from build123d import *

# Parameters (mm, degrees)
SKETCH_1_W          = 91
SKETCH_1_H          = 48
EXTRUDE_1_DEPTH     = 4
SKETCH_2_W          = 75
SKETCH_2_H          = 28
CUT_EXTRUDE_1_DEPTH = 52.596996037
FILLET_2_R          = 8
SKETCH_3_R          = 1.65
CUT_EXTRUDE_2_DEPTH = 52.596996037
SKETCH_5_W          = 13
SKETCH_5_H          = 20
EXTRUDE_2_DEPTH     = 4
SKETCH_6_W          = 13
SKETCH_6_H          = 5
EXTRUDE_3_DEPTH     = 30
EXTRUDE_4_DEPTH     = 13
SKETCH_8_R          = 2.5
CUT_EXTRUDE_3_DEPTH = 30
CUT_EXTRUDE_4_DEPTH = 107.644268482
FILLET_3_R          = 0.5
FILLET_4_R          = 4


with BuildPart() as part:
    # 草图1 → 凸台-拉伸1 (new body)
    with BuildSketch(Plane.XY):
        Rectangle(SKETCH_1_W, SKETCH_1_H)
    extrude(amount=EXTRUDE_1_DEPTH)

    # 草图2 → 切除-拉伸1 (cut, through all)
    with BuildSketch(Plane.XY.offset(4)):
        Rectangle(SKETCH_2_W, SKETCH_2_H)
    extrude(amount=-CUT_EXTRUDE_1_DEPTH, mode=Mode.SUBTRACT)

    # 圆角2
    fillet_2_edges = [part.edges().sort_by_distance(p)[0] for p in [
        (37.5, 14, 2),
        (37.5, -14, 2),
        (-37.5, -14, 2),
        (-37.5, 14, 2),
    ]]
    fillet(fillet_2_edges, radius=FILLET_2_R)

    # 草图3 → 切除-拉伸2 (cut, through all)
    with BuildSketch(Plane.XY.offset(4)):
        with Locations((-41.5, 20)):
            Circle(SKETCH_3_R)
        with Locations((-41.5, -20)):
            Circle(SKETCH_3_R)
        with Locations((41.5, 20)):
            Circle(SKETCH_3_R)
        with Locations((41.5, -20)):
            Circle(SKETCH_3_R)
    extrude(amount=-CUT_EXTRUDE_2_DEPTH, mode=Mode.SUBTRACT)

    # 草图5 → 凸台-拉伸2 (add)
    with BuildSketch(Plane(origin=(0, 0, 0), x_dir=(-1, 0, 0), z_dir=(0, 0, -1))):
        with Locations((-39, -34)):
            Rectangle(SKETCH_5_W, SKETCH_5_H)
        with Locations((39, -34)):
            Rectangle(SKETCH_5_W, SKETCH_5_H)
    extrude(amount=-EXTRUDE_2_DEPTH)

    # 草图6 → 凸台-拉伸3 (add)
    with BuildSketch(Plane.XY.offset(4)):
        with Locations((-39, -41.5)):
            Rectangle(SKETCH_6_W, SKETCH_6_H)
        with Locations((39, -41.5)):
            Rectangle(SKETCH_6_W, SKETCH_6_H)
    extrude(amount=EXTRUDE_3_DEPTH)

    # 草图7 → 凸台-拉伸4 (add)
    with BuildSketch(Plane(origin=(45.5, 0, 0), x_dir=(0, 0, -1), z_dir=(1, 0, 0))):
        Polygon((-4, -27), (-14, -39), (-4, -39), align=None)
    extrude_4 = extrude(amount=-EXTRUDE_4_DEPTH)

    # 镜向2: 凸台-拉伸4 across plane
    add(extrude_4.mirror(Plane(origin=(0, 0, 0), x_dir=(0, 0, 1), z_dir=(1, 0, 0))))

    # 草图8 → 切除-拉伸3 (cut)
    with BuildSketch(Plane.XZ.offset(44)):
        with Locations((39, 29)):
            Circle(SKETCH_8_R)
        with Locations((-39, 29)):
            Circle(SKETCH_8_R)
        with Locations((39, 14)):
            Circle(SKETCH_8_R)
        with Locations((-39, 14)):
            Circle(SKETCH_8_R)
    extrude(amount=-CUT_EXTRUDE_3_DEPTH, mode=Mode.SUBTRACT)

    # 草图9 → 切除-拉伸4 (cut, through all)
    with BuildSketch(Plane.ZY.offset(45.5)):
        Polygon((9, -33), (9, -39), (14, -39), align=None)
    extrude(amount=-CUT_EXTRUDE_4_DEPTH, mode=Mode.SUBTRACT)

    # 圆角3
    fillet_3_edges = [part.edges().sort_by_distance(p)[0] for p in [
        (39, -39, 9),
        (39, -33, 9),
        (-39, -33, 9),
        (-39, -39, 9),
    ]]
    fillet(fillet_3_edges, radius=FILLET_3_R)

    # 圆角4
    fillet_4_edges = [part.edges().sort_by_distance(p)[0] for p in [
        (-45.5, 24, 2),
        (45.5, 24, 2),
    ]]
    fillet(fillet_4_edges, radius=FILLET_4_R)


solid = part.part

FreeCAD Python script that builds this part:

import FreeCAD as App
import Part
import Sketcher

V = App.Vector
Q = App.Units.Quantity


def edges_at(feature, points):
    """Names of the edges that pass closest to the given points."""
    edges = feature.Shape.Edges
    near = lambda p: min(range(len(edges)), key=lambda i: edges[i].distToShape(Part.Vertex(*p))[0])
    return sorted({f"Edge{near(p) + 1}" for p in points})


def add_polygon(sketch, points):
    """Adds a closed chain of lines whose ends are joined by coincident constraints."""
    first, n = sketch.GeometryCount, len(points)
    for a, b in zip(points, points[1:] + points[:1]):
        sketch.addGeometry(Part.LineSegment(App.Vector(*a, 0), App.Vector(*b, 0)), False)
    for i in range(n):
        sketch.addConstraint(Sketcher.Constraint("Coincident", first + i, 2, first + (i + 1) % n, 1))

doc = App.newDocument("Part")
params = doc.addObject("Spreadsheet::Sheet", "Params")
for row, (alias, value) in enumerate([
    ("sketch1_width", "91 mm"),
    ("sketch1_height", "48 mm"),
    ("pad1_length", "4 mm"),
    ("sketch2_width", "75 mm"),
    ("sketch2_height", "28 mm"),
    ("fillet_radius", "8 mm"),
    ("sketch3_diameter", "3.3 mm"),
    ("sketch4_width", "13 mm"),
    ("sketch4_height", "20 mm"),
    ("pad2_length", "4 mm"),
    ("sketch5_width", "13 mm"),
    ("sketch5_height", "5 mm"),
    ("pad3_length", "30 mm"),
    ("sketch6_width", "12 mm"),
    ("sketch6_height", "10 mm"),
    ("pad4_length", "13 mm"),
    ("sketch7_diameter", "5 mm"),
    ("pocket3_length", "30 mm"),
    ("sketch8_width", "6 mm"),
    ("sketch8_height", "5 mm"),
    ("fillet2_radius", "0.5 mm"),
    ("fillet3_radius", "4 mm"),
], start=1):
    params.set(f"A{row}", alias)
    params.set(f"B{row}", "=" + value)
    params.setAlias(f"B{row}", alias)

body = doc.addObject("PartDesign::Body", "Body")

sketch1 = doc.addObject("Sketcher::SketchObject", "Sketch")
body.addObject(sketch1)
sketch1.AttachmentSupport = (doc.XY_Plane, [""])
sketch1.MapMode = "FlatFace"
add_polygon(sketch1, [(-46, 24), (-46, -24), (46, -24), (46, 24)])
sketch1.addConstraint([
    Sketcher.Constraint("Vertical", 0),
    Sketcher.Constraint("Horizontal", 1),
    Sketcher.Constraint("Vertical", 2),
    Sketcher.Constraint("Horizontal", 3),
    Sketcher.Constraint("Symmetric", 0, 2, 2, 2, -1, 1),
    Sketcher.Constraint("DistanceX", 1, 1, 1, 2, Q("91 mm")),
    Sketcher.Constraint("DistanceY", 0, 2, 0, 1, Q("48 mm")),
])
sketch1.setExpression("Constraints[9]", "Params.sketch1_width")
sketch1.setExpression("Constraints[10]", "Params.sketch1_height")
pad1 = doc.addObject("PartDesign::Pad", "Pad")
body.addObject(pad1)
pad1.Profile = sketch1
pad1.setExpression("Length", "Params.pad1_length")

sketch2 = doc.addObject("Sketcher::SketchObject", "Sketch001")
body.addObject(sketch2)
sketch2.AttachmentSupport = (doc.XY_Plane, [""])
sketch2.MapMode = "FlatFace"
sketch2.AttachmentOffset = App.Placement(V(0, 0, 4), App.Rotation())
add_polygon(sketch2, [(-38, 14), (-38, -14), (38, -14), (38, 14)])
sketch2.addConstraint([
    Sketcher.Constraint("Vertical", 0),
    Sketcher.Constraint("Horizontal", 1),
    Sketcher.Constraint("Vertical", 2),
    Sketcher.Constraint("Horizontal", 3),
    Sketcher.Constraint("Symmetric", 0, 2, 2, 2, -1, 1),
    Sketcher.Constraint("DistanceX", 1, 1, 1, 2, Q("75 mm")),
    Sketcher.Constraint("DistanceY", 0, 2, 0, 1, Q("28 mm")),
])
sketch2.setExpression("Constraints[9]", "Params.sketch2_width")
sketch2.setExpression("Constraints[10]", "Params.sketch2_height")
pocket1 = doc.addObject("PartDesign::Pocket", "Pocket")
body.addObject(pocket1)
pocket1.Profile = sketch2
pocket1.Type = "ThroughAll"
doc.recompute()

fillet = doc.addObject("PartDesign::Fillet", "Fillet")
body.addObject(fillet)
fillet.Base = (pocket1, edges_at(pocket1, [
    (37.5, 14, 2),
    (37.5, -14, 2),
    (-37.5, -14, 2),
    (-37.5, 14, 2),
]))
fillet.setExpression("Radius", "Params.fillet_radius")

sketch3 = doc.addObject("Sketcher::SketchObject", "Sketch002")
body.addObject(sketch3)
sketch3.AttachmentSupport = (doc.XY_Plane, [""])
sketch3.MapMode = "FlatFace"
sketch3.AttachmentOffset = App.Placement(V(0, 0, 4), App.Rotation())
sketch3.addGeometry([
    Part.Circle(V(-41.5, 20, 0), V(0, 0, 1), 1.6),
    Part.Circle(V(-41.5, -20, 0), V(0, 0, 1), 1.6),
    Part.Circle(V(41.5, 20, 0), V(0, 0, 1), 1.6),
    Part.Circle(V(41.5, -20, 0), V(0, 0, 1), 1.6),
], False)
sketch3.addConstraint([
    Sketcher.Constraint("Equal", 0, 1),
    Sketcher.Constraint("Equal", 1, 2),
    Sketcher.Constraint("Equal", 2, 3),
    Sketcher.Constraint("Symmetric", 1, 3, 2, 3, -1, 1),
    Sketcher.Constraint("Symmetric", 0, 3, 3, 3, -1, 1),
    Sketcher.Constraint("Symmetric", 0, 3, 2, 3, -2),
    Sketcher.Constraint("Diameter", 0, Q("3.3 mm")),
    Sketcher.Constraint("DistanceY", -1, 1, 0, 3, Q("20 mm")),
    Sketcher.Constraint("DistanceX", 0, 3, 2, 3, Q("83 mm")),
])
sketch3.setExpression("Constraints[6]", "Params.sketch3_diameter")
pocket2 = doc.addObject("PartDesign::Pocket", "Pocket001")
body.addObject(pocket2)
pocket2.Profile = sketch3
pocket2.Type = "ThroughAll"

sketch4 = doc.addObject("Sketcher::SketchObject", "Sketch003")
body.addObject(sketch4)
sketch4.AttachmentSupport = (doc.XY_Plane, [""])
sketch4.MapMode = "FlatFace"
add_polygon(sketch4, [(46, -24), (46, -44), (32, -44), (32, -24)])
add_polygon(sketch4, [(-32, -24), (-32, -44), (-46, -44), (-46, -24)])
sketch4.addConstraint([
    Sketcher.Constraint("Vertical", 0),
    Sketcher.Constraint("Horizontal", 1),
    Sketcher.Constraint("Vertical", 2),
    Sketcher.Constraint("Horizontal", 3),
    Sketcher.Constraint("Vertical", 4),
    Sketcher.Constraint("Horizontal", 5),
    Sketcher.Constraint("Vertical", 6),
    Sketcher.Constraint("Horizontal", 7),
    Sketcher.Constraint("Symmetric", 1, 2, 4, 2, -2),
    Sketcher.Constraint("Symmetric", 3, 2, 6, 2, -2),
    Sketcher.Constraint("DistanceX", 1, 2, 1, 1, Q("13 mm")),
    Sketcher.Constraint("DistanceY", 0, 2, 0, 1, Q("20 mm")),
    Sketcher.Constraint("DistanceY", 0, 2, -1, 1, Q("44 mm")),
    Sketcher.Constraint("DistanceX", 4, 2, 1, 2, Q("65 mm")),
])
sketch4.setExpression("Constraints[18]", "Params.sketch4_width")
sketch4.setExpression("Constraints[19]", "Params.sketch4_height")
pad2 = doc.addObject("PartDesign::Pad", "Pad001")
body.addObject(pad2)
pad2.Profile = sketch4
pad2.setExpression("Length", "Params.pad2_length")

sketch5 = doc.addObject("Sketcher::SketchObject", "Sketch004")
body.addObject(sketch5)
sketch5.AttachmentSupport = (doc.XY_Plane, [""])
sketch5.MapMode = "FlatFace"
sketch5.AttachmentOffset = App.Placement(V(0, 0, 4), App.Rotation())
add_polygon(sketch5, [(-46, -39), (-46, -44), (-32, -44), (-32, -39)])
add_polygon(sketch5, [(32, -39), (32, -44), (46, -44), (46, -39)])
sketch5.addConstraint([
    Sketcher.Constraint("Vertical", 0),
    Sketcher.Constraint("Horizontal", 1),
    Sketcher.Constraint("Vertical", 2),
    Sketcher.Constraint("Horizontal", 3),
    Sketcher.Constraint("Vertical", 4),
    Sketcher.Constraint("Horizontal", 5),
    Sketcher.Constraint("Vertical", 6),
    Sketcher.Constraint("Horizontal", 7),
    Sketcher.Constraint("Symmetric", 1, 2, 4, 2, -2),
    Sketcher.Constraint("Symmetric", 3, 2, 6, 2, -2),
    Sketcher.Constraint("DistanceX", 1, 1, 1, 2, Q("13 mm")),
    Sketcher.Constraint("DistanceY", 0, 2, 0, 1, Q("5 mm")),
    Sketcher.Constraint("DistanceY", 0, 2, -1, 1, Q("44 mm")),
    Sketcher.Constraint("DistanceX", 1, 2, 4, 2, Q("65 mm")),
])
sketch5.setExpression("Constraints[18]", "Params.sketch5_width")
sketch5.setExpression("Constraints[19]", "Params.sketch5_height")
pad3 = doc.addObject("PartDesign::Pad", "Pad002")
body.addObject(pad3)
pad3.Profile = sketch5
pad3.setExpression("Length", "Params.pad3_length")

sketch6 = doc.addObject("Sketcher::SketchObject", "Sketch005")
body.addObject(sketch6)
sketch6.AttachmentSupport = (doc.YZ_Plane, [""])
sketch6.MapMode = "FlatFace"
sketch6.AttachmentOffset = App.Placement(V(0, 0, 45.5), App.Rotation())
add_polygon(sketch6, [(-27, 4), (-39, 14), (-39, 4)])
sketch6.addConstraint([
    Sketcher.Constraint("Vertical", 1),
    Sketcher.Constraint("Horizontal", 2),
    Sketcher.Constraint("DistanceX", 2, 1, 2, 2, Q("12 mm")),
    Sketcher.Constraint("DistanceY", 1, 2, 1, 1, Q("10 mm")),
    Sketcher.Constraint("DistanceX", 0, 2, -1, 1, Q("39 mm")),
    Sketcher.Constraint("DistanceY", -1, 1, 0, 2, Q("14 mm")),
])
sketch6.setExpression("Constraints[5]", "Params.sketch6_width")
sketch6.setExpression("Constraints[6]", "Params.sketch6_height")
pad4 = doc.addObject("PartDesign::Pad", "Pad003")
body.addObject(pad4)
pad4.Profile = sketch6
pad4.setExpression("Length", "Params.pad4_length")
pad4.Reversed = True
doc.recompute()

mirrored = doc.addObject("PartDesign::Mirrored", "Mirrored")
body.addObject(mirrored)
mirrored.Originals = [pad4]
mirrored.MirrorPlane = (doc.YZ_Plane, [""])
body.Tip = mirrored

sketch7 = doc.addObject("Sketcher::SketchObject", "Sketch006")
body.addObject(sketch7)
sketch7.AttachmentSupport = (doc.XZ_Plane, [""])
sketch7.MapMode = "FlatFace"
sketch7.AttachmentOffset = App.Placement(V(0, 0, 44), App.Rotation())
sketch7.addGeometry([
    Part.Circle(V(39, 29, 0), V(0, 0, 1), 2.5),
    Part.Circle(V(-39, 29, 0), V(0, 0, 1), 2.5),
    Part.Circle(V(39, 14, 0), V(0, 0, 1), 2.5),
    Part.Circle(V(-39, 14, 0), V(0, 0, 1), 2.5),
], False)
sketch7.addConstraint([
    Sketcher.Constraint("Equal", 0, 1),
    Sketcher.Constraint("Equal", 1, 2),
    Sketcher.Constraint("Equal", 2, 3),
    Sketcher.Constraint("Symmetric", 0, 3, 1, 3, -2),
    Sketcher.Constraint("Symmetric", 2, 3, 3, 3, -2),
    Sketcher.Constraint("Vertical", 0, 3, 2, 3),
    Sketcher.Constraint("Diameter", 0, Q("5 mm")),
    Sketcher.Constraint("DistanceX", -1, 1, 0, 3, Q("39 mm")),
    Sketcher.Constraint("DistanceY", -1, 1, 0, 3, Q("29 mm")),
    Sketcher.Constraint("DistanceY", -1, 1, 2, 3, Q("14 mm")),
])
sketch7.setExpression("Constraints[6]", "Params.sketch7_diameter")
pocket3 = doc.addObject("PartDesign::Pocket", "Pocket002")
body.addObject(pocket3)
pocket3.Profile = sketch7
pocket3.setExpression("Length", "Params.pocket3_length")

sketch8 = doc.addObject("Sketcher::SketchObject", "Sketch007")
body.addObject(sketch8)
sketch8.AttachmentSupport = (doc.YZ_Plane, [""])
sketch8.MapMode = "FlatFace"
sketch8.AttachmentOffset = App.Placement(V(0, 0, -45.5), App.Rotation())
add_polygon(sketch8, [(-33, 9), (-39, 9), (-39, 14)])
sketch8.addConstraint([
    Sketcher.Constraint("Horizontal", 0),
    Sketcher.Constraint("Vertical", 1),
    Sketcher.Constraint("DistanceX", 0, 2, 0, 1, Q("6 mm")),
    Sketcher.Constraint("DistanceY", 1, 1, 1, 2, Q("5 mm")),
    Sketcher.Constraint("DistanceX", 0, 2, -1, 1, Q("39 mm")),
    Sketcher.Constraint("DistanceY", -1, 1, 0, 2, Q("9 mm")),
])
sketch8.setExpression("Constraints[5]", "Params.sketch8_width")
sketch8.setExpression("Constraints[6]", "Params.sketch8_height")
pocket4 = doc.addObject("PartDesign::Pocket", "Pocket003")
body.addObject(pocket4)
pocket4.Profile = sketch8
pocket4.Type = "ThroughAll"
pocket4.Reversed = True
doc.recompute()

fillet2 = doc.addObject("PartDesign::Fillet", "Fillet001")
body.addObject(fillet2)
fillet2.Base = (pocket4, edges_at(pocket4, [
    (39, -39, 9),
    (39, -33, 9),
    (-39, -33, 9),
    (-39, -39, 9),
]))
fillet2.setExpression("Radius", "Params.fillet2_radius")
doc.recompute()

fillet3 = doc.addObject("PartDesign::Fillet", "Fillet002")
body.addObject(fillet3)
fillet3.Base = (fillet2, edges_at(fillet2, [(-45.5, 24, 2), (45.5, 24, 2)]))
fillet3.setExpression("Radius", "Params.fillet3_radius")

doc.recompute()
